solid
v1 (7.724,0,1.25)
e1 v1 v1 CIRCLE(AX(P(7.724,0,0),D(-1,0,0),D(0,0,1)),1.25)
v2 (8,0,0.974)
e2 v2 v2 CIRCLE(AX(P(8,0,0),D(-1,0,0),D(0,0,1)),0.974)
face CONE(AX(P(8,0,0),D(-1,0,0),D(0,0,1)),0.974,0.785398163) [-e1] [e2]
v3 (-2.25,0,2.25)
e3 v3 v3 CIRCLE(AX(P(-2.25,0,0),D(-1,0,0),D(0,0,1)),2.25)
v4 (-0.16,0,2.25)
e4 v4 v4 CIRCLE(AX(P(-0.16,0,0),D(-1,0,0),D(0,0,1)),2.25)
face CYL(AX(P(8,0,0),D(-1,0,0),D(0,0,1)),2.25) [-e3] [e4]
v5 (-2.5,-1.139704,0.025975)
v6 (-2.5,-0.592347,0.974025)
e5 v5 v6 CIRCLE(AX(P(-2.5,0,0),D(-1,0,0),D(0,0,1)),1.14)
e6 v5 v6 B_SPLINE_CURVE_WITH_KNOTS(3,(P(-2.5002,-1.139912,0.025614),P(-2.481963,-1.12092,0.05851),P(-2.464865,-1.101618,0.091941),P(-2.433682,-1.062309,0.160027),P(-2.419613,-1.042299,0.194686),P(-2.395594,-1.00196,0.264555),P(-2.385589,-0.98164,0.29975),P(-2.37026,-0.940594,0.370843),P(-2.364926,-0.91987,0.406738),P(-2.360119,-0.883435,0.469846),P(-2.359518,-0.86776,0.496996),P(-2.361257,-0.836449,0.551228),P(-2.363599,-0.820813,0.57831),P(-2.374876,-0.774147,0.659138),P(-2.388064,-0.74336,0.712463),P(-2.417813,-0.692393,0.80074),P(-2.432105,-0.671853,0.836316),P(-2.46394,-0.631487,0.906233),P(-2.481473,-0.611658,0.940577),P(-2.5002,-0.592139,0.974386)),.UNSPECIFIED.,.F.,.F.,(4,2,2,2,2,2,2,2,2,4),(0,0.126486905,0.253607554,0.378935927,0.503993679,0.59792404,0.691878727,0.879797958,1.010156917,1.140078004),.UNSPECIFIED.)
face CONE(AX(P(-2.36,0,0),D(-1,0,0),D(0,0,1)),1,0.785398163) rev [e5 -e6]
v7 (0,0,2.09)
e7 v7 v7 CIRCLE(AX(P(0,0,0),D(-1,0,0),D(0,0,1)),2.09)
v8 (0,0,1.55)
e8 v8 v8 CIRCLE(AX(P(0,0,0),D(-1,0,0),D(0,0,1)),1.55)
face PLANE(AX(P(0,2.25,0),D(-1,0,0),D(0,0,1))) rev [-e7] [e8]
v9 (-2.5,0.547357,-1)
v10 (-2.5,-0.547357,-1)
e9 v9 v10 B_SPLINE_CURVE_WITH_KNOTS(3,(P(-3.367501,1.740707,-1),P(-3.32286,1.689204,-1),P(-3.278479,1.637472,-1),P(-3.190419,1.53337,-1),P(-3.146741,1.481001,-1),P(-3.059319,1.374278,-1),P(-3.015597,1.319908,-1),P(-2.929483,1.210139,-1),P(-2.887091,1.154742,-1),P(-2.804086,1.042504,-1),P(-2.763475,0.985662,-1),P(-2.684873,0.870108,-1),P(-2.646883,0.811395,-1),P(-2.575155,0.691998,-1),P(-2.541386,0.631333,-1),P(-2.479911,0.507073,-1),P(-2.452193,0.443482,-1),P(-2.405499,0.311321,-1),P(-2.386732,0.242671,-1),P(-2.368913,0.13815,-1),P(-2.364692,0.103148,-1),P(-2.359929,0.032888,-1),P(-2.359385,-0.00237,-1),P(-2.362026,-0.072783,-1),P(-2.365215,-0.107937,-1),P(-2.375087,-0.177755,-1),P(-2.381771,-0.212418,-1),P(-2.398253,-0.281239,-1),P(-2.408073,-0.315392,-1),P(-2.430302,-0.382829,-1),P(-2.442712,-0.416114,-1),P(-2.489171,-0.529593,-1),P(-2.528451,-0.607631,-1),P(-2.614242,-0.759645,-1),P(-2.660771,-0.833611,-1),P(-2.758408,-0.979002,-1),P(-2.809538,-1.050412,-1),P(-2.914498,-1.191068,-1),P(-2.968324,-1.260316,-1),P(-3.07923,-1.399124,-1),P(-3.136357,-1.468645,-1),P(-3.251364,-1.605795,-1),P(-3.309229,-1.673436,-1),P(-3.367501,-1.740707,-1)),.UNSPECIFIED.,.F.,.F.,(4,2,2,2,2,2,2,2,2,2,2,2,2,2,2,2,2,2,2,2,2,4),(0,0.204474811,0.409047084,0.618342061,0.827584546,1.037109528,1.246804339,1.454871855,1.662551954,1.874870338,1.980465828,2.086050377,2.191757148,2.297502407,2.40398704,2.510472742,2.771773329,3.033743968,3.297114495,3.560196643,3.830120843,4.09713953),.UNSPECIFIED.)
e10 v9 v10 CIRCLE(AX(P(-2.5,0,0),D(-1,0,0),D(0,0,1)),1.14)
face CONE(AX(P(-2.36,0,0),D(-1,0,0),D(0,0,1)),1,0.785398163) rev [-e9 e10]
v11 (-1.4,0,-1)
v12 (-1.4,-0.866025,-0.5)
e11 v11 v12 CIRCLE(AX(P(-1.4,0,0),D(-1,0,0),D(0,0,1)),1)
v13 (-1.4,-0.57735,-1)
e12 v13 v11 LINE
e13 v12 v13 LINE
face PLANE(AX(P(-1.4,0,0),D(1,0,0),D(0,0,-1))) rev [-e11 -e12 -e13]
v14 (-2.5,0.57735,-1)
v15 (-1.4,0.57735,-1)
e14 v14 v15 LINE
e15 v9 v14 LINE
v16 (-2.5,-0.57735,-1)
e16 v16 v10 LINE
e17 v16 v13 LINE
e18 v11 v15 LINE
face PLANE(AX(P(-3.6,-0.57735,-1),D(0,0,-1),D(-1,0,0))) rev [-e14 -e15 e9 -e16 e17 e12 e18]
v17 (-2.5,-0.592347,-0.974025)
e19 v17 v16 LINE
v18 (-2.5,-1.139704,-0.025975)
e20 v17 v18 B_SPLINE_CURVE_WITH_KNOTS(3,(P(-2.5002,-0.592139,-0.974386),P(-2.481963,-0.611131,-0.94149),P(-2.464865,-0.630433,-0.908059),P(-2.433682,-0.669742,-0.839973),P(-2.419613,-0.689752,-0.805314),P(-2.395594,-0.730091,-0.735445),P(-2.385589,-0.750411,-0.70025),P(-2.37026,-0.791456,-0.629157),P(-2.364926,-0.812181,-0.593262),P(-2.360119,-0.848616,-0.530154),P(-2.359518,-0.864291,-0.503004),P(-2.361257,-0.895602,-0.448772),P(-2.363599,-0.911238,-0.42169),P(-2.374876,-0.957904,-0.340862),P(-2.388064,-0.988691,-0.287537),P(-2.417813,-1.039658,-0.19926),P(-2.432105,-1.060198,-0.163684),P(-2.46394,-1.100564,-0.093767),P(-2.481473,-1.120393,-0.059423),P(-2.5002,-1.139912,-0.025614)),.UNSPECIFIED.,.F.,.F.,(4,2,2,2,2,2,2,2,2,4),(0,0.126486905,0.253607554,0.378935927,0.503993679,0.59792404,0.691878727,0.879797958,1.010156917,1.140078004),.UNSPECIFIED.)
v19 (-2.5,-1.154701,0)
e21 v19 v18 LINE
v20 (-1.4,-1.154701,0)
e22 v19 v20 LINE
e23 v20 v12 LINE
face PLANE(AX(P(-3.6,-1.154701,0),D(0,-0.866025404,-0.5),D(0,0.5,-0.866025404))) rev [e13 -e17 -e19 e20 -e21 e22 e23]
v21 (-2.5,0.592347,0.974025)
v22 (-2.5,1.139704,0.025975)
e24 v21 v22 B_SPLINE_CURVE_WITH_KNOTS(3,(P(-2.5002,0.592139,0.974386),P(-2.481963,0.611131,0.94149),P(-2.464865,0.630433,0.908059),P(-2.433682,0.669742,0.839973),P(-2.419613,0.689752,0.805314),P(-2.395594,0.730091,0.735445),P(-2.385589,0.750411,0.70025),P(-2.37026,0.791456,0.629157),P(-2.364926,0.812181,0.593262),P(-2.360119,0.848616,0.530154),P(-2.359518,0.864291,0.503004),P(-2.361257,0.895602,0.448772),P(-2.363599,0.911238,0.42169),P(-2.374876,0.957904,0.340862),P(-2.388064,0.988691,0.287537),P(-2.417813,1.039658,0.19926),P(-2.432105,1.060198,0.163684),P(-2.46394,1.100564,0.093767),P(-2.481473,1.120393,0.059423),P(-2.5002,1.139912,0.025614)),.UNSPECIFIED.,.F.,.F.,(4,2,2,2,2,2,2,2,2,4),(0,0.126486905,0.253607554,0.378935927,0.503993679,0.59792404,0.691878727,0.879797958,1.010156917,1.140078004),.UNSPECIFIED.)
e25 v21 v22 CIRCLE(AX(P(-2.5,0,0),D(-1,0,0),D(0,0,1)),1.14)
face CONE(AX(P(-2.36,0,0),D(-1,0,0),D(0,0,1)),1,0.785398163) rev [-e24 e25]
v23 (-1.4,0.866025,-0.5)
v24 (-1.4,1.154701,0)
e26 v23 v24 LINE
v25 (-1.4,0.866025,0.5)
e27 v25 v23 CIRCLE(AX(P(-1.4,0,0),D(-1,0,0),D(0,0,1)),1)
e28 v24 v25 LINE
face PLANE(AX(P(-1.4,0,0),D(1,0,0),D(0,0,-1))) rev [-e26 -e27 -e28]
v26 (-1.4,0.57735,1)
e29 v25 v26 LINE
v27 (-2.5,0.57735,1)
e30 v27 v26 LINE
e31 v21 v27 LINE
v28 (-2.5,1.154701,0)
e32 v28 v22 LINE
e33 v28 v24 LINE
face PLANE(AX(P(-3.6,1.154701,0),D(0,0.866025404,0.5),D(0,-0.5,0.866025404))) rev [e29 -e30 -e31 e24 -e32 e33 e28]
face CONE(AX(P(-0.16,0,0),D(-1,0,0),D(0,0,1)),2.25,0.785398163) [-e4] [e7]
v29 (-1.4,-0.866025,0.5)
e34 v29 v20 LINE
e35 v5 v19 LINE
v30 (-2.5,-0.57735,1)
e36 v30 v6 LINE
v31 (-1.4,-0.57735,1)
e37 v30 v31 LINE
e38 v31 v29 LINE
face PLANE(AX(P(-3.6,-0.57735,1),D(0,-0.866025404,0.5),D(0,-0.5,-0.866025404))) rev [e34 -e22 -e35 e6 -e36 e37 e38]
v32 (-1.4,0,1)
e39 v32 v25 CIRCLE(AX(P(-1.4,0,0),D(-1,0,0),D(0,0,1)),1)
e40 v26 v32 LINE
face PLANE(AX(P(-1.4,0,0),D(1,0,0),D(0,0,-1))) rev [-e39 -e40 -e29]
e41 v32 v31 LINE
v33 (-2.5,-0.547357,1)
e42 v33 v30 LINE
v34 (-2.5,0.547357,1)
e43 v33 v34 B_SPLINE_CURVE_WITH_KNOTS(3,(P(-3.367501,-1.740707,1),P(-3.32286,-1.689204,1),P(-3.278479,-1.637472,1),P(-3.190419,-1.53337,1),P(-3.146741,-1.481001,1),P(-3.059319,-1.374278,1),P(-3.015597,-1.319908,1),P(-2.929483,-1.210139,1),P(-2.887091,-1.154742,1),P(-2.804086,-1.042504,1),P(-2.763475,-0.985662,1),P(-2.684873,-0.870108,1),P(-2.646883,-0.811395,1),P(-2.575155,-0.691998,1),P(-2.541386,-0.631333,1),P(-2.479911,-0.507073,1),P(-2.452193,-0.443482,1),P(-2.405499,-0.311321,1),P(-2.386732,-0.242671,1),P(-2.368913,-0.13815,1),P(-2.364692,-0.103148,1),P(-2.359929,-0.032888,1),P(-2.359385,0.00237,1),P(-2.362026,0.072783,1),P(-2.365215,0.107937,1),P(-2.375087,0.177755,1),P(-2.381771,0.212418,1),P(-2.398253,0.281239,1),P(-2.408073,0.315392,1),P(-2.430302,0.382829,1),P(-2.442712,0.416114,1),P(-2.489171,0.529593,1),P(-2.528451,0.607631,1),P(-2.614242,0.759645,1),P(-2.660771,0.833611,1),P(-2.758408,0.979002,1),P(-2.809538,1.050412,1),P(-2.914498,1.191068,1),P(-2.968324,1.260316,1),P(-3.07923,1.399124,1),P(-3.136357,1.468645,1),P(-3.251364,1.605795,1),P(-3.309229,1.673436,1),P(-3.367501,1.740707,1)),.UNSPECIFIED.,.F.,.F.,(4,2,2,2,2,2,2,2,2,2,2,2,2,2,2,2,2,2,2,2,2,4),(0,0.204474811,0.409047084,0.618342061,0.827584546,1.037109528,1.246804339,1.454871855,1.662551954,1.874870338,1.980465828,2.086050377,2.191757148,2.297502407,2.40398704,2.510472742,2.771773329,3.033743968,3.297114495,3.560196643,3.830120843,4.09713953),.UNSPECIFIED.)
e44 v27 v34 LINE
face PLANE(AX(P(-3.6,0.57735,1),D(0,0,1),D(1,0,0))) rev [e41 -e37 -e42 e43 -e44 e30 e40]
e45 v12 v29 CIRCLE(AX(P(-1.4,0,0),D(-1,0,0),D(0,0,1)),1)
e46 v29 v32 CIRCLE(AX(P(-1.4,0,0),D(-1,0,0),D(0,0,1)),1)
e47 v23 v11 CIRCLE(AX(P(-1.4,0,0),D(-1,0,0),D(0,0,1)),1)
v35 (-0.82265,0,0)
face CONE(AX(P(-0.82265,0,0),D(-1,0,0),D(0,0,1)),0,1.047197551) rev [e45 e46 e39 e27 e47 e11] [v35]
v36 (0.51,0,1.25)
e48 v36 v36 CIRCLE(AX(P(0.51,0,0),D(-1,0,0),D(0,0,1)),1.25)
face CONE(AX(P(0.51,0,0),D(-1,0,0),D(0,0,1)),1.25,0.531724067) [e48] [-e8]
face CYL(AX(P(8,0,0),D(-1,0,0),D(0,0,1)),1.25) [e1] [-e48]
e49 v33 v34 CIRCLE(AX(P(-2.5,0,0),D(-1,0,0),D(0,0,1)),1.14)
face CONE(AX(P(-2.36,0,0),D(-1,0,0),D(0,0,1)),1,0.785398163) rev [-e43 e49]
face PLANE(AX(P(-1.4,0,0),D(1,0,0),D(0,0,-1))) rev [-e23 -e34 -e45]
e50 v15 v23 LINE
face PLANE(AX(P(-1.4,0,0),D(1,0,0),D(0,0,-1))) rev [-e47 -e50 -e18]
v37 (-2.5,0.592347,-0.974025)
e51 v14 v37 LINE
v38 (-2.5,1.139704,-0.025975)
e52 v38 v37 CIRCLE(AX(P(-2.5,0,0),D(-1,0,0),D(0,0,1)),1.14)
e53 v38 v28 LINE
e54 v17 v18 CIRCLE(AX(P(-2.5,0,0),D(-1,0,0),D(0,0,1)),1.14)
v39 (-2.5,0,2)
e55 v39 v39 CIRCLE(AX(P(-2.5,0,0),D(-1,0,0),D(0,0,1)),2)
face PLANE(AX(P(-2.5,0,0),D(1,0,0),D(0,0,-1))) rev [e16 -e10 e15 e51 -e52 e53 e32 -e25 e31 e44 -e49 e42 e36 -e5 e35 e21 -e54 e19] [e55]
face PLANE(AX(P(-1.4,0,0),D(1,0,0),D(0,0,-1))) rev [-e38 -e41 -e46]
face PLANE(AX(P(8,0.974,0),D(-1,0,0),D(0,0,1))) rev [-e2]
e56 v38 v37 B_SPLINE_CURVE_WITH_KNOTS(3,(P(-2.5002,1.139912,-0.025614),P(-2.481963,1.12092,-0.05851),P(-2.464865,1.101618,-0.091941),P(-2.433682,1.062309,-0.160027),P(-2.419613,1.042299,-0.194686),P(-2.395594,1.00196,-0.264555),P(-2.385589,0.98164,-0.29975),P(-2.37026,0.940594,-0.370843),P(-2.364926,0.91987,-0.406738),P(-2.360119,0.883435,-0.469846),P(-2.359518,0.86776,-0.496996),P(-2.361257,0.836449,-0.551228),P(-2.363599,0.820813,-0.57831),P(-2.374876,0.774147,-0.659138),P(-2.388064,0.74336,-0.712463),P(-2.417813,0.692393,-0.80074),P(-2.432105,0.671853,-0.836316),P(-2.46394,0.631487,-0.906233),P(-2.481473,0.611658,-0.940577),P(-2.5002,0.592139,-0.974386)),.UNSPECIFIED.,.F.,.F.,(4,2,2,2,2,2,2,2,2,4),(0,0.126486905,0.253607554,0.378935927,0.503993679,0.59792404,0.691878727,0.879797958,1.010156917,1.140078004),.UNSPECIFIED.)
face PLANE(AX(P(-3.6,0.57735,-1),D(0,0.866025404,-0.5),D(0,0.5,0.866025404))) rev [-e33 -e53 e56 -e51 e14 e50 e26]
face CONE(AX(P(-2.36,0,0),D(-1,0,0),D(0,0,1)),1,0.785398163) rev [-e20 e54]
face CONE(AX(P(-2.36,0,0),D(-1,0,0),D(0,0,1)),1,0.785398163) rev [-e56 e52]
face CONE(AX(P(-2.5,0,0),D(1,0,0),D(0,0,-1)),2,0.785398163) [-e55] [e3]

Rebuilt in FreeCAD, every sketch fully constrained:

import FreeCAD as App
import Part
import Sketcher
from FreeCAD import Vector
Q = App.Units.Quantity


def add_polygon(sketch, points):
    """Adds a closed chain of lines whose ends are joined by coincident constraints."""
    first, n = sketch.GeometryCount, len(points)
    for a, b in zip(points, points[1:] + points[:1]):
        sketch.addGeometry(Part.LineSegment(App.Vector(*a, 0), App.Vector(*b, 0)), False)
    for i in range(n):
        sketch.addConstraint(Sketcher.Constraint("Coincident", first + i, 2, first + (i + 1) % n, 1))

doc = App.newDocument("Part")
body = doc.addObject("PartDesign::Body", "Body")

# Sketch on XY plane
sketch1 = body.newObject("Sketcher::SketchObject", "Sketch")
sketch1.AttachmentSupport = (doc.getObject("XY_Plane"), [""])
sketch1.MapMode = "FlatFace"
add_polygon(sketch1, [(-2.5, 2.25), (-2.5, 0), (8, 0), (8, 0.974), (7.724, 1.25), (0.51, 1.25), (0, 1.55), (0, 2.25)])  # lines 0-7
sketch1.addConstraint([
    Sketcher.Constraint("Vertical", 0),
    Sketcher.Constraint("Horizontal", 1),
    Sketcher.Constraint("Vertical", 2),
    Sketcher.Constraint("Horizontal", 4),
    Sketcher.Constraint("Vertical", 6),
    Sketcher.Constraint("Horizontal", 7),
    Sketcher.Constraint("PointOnObject", 0, 2, -1),
    Sketcher.Constraint("PointOnObject", 5, 2, -2),
    Sketcher.Constraint("Angle", 3, Q("135 deg")),
    Sketcher.Constraint("DistanceX", 1, 1, 1, 2, Q("10.5 mm")),
    Sketcher.Constraint("DistanceX", 7, 2, 7, 1, Q("2.5 mm")),
    Sketcher.Constraint("DistanceY", 6, 1, 6, 2, Q("0.7 mm")),
    Sketcher.Constraint("DistanceY", 4, 2, 6, 2, Q("1 mm")),
    Sketcher.Constraint("DistanceY", 0, 2, 0, 1, Q("2.25 mm")),
    Sketcher.Constraint("DistanceX", 4, 2, 4, 1, Q("7.214 mm")),
    Sketcher.Constraint("DistanceY", 2, 1, 2, 2, Q("0.974 mm")),
])
revolution = body.newObject("PartDesign::Revolution", "Revolution")
revolution.Profile = sketch1
revolution.ReferenceAxis = (sketch1, ["H_Axis"])
revolution.Angle = 360

# Sketch on XY plane
sketch2 = body.newObject("Sketcher::SketchObject", "Sketch001")
sketch2.AttachmentSupport = (doc.getObject("XY_Plane"), [""])
sketch2.MapMode = "FlatFace"
add_polygon(sketch2, [(-2.5, 2.7), (-2.5, 2), (-2.25, 2.25), (-0.16, 2.25), (0, 2.09), (0, 2.7)])  # lines 0-5
sketch2.addConstraint([
    Sketcher.Constraint("Vertical", 0),
    Sketcher.Constraint("Horizontal", 2),
    Sketcher.Constraint("Vertical", 4),
    Sketcher.Constraint("Horizontal", 5),
    Sketcher.Constraint("PointOnObject", 3, 2, -2),
    Sketcher.Constraint("Perpendicular", 1, 3),
    Sketcher.Constraint("Angle", 1, Q("45 deg")),
    Sketcher.Constraint("DistanceX", 5, 2, 5, 1, Q("2.5 mm")),
    Sketcher.Constraint("DistanceY", 0, 2, 0, 1, Q("0.7 mm")),
    Sketcher.Constraint("DistanceY", -1, 1, 0, 2, Q("2 mm")),
    Sketcher.Constraint("DistanceX", 2, 1, 2, 2, Q("2.09 mm")),
    Sketcher.Constraint("DistanceY", 4, 1, 4, 2, Q("0.61 mm")),
])
groove = body.newObject("PartDesign::Groove", "Groove")
groove.Profile = sketch2
groove.ReferenceAxis = (sketch2, ["H_Axis"])
groove.Angle = 360

# Sketch on XY plane
sketch3 = body.newObject("Sketcher::SketchObject", "Sketch002")
sketch3.AttachmentSupport = (doc.getObject("XY_Plane"), [""])
sketch3.MapMode = "FlatFace"
add_polygon(sketch3, [(-2.5, 1.14), (-2.5, 0), (-0.82265, 0), (-1.4, 1), (-2.36, 1)])  # lines 0-4
sketch3.addConstraint([
    Sketcher.Constraint("Vertical", 0),
    Sketcher.Constraint("Horizontal", 1),
    Sketcher.Constraint("Horizontal", 3),
    Sketcher.Constraint("PointOnObject", 0, 2, -1),
    Sketcher.Constraint("Angle", 2, Q("120 deg")),
    Sketcher.Constraint("Angle", 4, Q("135 deg")),
    Sketcher.Constraint("DistanceY", -1, 1, 2, 2, Q("1 mm")),
    Sketcher.Constraint("DistanceX", 3, 2, 3, 1, Q("0.96 mm")),
    Sketcher.Constraint("DistanceY", 0, 2, 0, 1, Q("1.14 mm")),
    Sketcher.Constraint("DistanceX", 0, 2, -1, 1, Q("2.5 mm")),
])
groove2 = body.newObject("PartDesign::Groove", "Groove001")
groove2.Profile = sketch3
groove2.ReferenceAxis = (sketch3, ["H_Axis"])
groove2.Angle = 360

# Sketch on YZ plane
sketch4 = body.newObject("Sketcher::SketchObject", "Sketch003")
sketch4.AttachmentSupport = (doc.getObject("YZ_Plane"), [""])
sketch4.MapMode = "FlatFace"
sketch4.AttachmentOffset = App.Placement(Vector(0, 0, -2.5), App.Rotation())
add_polygon(sketch4, [(-0.57735, 1), (-1.154701, 0), (-0.57735, -1), (0.57735, -1), (1.154701, 0), (0.57735, 1)])  # lines 0-5
sketch4.addConstraint([
    Sketcher.Constraint("Horizontal", 2),
    Sketcher.Constraint("Horizontal", 5),
    Sketcher.Constraint("Symmetric", 0, 2, 3, 2, -1, 1),
    Sketcher.Constraint("Symmetric", 1, 2, 4, 2, -1, 1),
    Sketcher.Constraint("PointOnObject", 0, 2, -1),
    Sketcher.Constraint("Parallel", 0, 3),
    Sketcher.Constraint("Vertical", 2, 2, 4, 2),
    Sketcher.Constraint("Angle", 0, Q("-120 deg")),
    Sketcher.Constraint("DistanceY", 1, 2, -1, 1, Q("1 mm")),
    Sketcher.Constraint("DistanceX", 2, 1, 2, 2, Q("1.154701 mm")),
])
pocket1 = body.newObject("PartDesign::Pocket", "Pocket")
pocket1.Profile = sketch4
pocket1.Type = "TwoLengths"
pocket1.Length = 1.1
pocket1.Length2 = 1.1
pocket1.Reversed = True

doc.recompute()
